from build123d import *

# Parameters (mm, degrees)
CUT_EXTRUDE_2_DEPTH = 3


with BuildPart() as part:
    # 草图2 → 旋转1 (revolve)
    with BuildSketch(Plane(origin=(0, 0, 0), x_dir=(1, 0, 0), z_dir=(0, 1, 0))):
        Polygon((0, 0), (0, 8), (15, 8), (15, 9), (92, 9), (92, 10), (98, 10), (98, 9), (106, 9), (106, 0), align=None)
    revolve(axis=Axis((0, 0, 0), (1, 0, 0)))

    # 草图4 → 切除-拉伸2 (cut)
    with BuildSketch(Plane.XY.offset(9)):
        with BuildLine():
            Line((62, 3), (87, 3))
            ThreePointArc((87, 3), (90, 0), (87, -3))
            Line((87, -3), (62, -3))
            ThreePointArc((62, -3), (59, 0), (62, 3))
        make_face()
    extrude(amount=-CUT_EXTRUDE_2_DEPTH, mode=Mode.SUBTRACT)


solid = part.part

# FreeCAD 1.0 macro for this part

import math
import FreeCAD as App
import Part
import Sketcher


def add_polygon(sketch, points):
    """Adds a closed chain of lines whose ends are joined by coincident constraints."""
    first, n = sketch.GeometryCount, len(points)
    for a, b in zip(points, points[1:] + points[:1]):
        sketch.addGeometry(Part.LineSegment(App.Vector(*a, 0), App.Vector(*b, 0)), False)
    for i in range(n):
        sketch.addConstraint(Sketcher.Constraint("Coincident", first + i, 2, first + (i + 1) % n, 1))

doc = App.newDocument("Part")
params = doc.addObject("Spreadsheet::Sheet", "Params")
for row, (alias, value) in enumerate([
    ("sketch1_width", "106 mm"),
    ("sketch1_width2", "8 mm"),
    ("sketch1_width3", "6 mm"),
    ("sketch1_width4", "77 mm"),
    ("sketch1_height", "9 mm"),
    ("revolution_angle", "360 deg"),
    ("sketch2_radius", "3 mm"),
    ("sketch2_width", "25 mm"),
    ("pocket1_length", "3 mm"),
], start=1):
    params.set(f"A{row}", alias)
    params.set(f"B{row}", "=" + value)
    params.setAlias(f"B{row}", alias)

body = doc.addObject("PartDesign::Body", "Body")

# Sketch on XZ plane
sketch1 = body.newObject("Sketcher::SketchObject", "Sketch")
sketch1.AttachmentSupport = (doc.getObject("XZ_Plane"), [""])
sketch1.MapMode = "FlatFace"
add_polygon(sketch1, [(0, -8), (0, 0), (106, 0), (106, -9), (98, -9), (98, -10), (92, -10), (92, -9), (15, -9), (15, -8)])  # lines 0-9
sketch1.addConstraint([
    Sketcher.Constraint("Vertical", 0),
    Sketcher.Constraint("Horizontal", 1),
    Sketcher.Constraint("Vertical", 2),
    Sketcher.Constraint("Horizontal", 3),
    Sketcher.Constraint("Vertical", 4),
    Sketcher.Constraint("Horizontal", 5),
    Sketcher.Constraint("Vertical", 6),
    Sketcher.Constraint("Horizontal", 7),
    Sketcher.Constraint("Vertical", 8),
    Sketcher.Constraint("Horizontal", 9),
    Sketcher.Constraint("Coincident", 0, 2, -1, 1),
    Sketcher.Constraint("Horizontal", 3, 2, 6, 2),
    Sketcher.Constraint("Equal", 3, 0),
    Sketcher.Constraint("Equal", 6, 8),
    Sketcher.Constraint("DistanceX", 1, 1, 1, 2, 106.0),
    Sketcher.Constraint("DistanceX", 3, 2, 3, 1, 8.0),
    Sketcher.Constraint("DistanceX", 5, 2, 5, 1, 6.0),
    Sketcher.Constraint("DistanceX", 7, 2, 7, 1, 77.0),
    Sketcher.Constraint("DistanceY", 2, 2, 2, 1, 9.0),
])
sketch1.setExpression("Constraints[24]", "Params.sketch1_width")
sketch1.setExpression("Constraints[25]", "Params.sketch1_width2")
sketch1.setExpression("Constraints[26]", "Params.sketch1_width3")
sketch1.setExpression("Constraints[27]", "Params.sketch1_width4")
sketch1.setExpression("Constraints[28]", "Params.sketch1_height")
revolution = body.newObject("PartDesign::Revolution", "Revolution")
revolution.Profile = sketch1
revolution.ReferenceAxis = (sketch1, ["H_Axis"])
revolution.setExpression("Angle", "Params.revolution_angle")

# Sketch on XY plane
sketch2 = body.newObject("Sketcher::SketchObject", "Sketch001")
sketch2.AttachmentSupport = (doc.getObject("XY_Plane"), [""])
sketch2.MapMode = "FlatFace"
sketch2.AttachmentOffset = App.Placement(App.Vector(0, 0, 9), App.Rotation())
sketch2.addGeometry([
    Part.LineSegment(App.Vector(87, 3, 0), App.Vector(62, 3, 0)),
    Part.ArcOfCircle(Part.Circle(App.Vector(62, 0, 0), App.Vector(0, 0, 1), 3), math.radians(90), math.radians(270)),
    Part.LineSegment(App.Vector(62, -3, 0), App.Vector(87, -3, 0)),
    Part.ArcOfCircle(Part.Circle(App.Vector(87, 0, 0), App.Vector(0, 0, 1), 3), math.radians(-90), math.radians(90)),
], False)
sketch2.addConstraint([
    Sketcher.Constraint("Tangent", 0, 2, 1, 1),
    Sketcher.Constraint("Tangent", 1, 2, 2, 1),
    Sketcher.Constraint("Tangent", 2, 2, 3, 1),
    Sketcher.Constraint("Tangent", 3, 2, 0, 1),
    Sketcher.Constraint("Horizontal", 0),
    Sketcher.Constraint("Horizontal", 2),
    Sketcher.Constraint("PointOnObject", 1, 3, -1),
    Sketcher.Constraint("Radius", 1, 3.0),
    Sketcher.Constraint("DistanceX", 0, 2, 0, 1, 25.0),
    Sketcher.Constraint("DistanceX", -1, 1, 1, 3, 62.0),
])
sketch2.setExpression("Constraints[7]", "Params.sketch2_radius")
sketch2.setExpression("Constraints[8]", "Params.sketch2_width")
pocket1 = body.newObject("PartDesign::Pocket", "Pocket")
pocket1.Profile = sketch2
pocket1.setExpression("Length", "Params.pocket1_length")

doc.recompute()
